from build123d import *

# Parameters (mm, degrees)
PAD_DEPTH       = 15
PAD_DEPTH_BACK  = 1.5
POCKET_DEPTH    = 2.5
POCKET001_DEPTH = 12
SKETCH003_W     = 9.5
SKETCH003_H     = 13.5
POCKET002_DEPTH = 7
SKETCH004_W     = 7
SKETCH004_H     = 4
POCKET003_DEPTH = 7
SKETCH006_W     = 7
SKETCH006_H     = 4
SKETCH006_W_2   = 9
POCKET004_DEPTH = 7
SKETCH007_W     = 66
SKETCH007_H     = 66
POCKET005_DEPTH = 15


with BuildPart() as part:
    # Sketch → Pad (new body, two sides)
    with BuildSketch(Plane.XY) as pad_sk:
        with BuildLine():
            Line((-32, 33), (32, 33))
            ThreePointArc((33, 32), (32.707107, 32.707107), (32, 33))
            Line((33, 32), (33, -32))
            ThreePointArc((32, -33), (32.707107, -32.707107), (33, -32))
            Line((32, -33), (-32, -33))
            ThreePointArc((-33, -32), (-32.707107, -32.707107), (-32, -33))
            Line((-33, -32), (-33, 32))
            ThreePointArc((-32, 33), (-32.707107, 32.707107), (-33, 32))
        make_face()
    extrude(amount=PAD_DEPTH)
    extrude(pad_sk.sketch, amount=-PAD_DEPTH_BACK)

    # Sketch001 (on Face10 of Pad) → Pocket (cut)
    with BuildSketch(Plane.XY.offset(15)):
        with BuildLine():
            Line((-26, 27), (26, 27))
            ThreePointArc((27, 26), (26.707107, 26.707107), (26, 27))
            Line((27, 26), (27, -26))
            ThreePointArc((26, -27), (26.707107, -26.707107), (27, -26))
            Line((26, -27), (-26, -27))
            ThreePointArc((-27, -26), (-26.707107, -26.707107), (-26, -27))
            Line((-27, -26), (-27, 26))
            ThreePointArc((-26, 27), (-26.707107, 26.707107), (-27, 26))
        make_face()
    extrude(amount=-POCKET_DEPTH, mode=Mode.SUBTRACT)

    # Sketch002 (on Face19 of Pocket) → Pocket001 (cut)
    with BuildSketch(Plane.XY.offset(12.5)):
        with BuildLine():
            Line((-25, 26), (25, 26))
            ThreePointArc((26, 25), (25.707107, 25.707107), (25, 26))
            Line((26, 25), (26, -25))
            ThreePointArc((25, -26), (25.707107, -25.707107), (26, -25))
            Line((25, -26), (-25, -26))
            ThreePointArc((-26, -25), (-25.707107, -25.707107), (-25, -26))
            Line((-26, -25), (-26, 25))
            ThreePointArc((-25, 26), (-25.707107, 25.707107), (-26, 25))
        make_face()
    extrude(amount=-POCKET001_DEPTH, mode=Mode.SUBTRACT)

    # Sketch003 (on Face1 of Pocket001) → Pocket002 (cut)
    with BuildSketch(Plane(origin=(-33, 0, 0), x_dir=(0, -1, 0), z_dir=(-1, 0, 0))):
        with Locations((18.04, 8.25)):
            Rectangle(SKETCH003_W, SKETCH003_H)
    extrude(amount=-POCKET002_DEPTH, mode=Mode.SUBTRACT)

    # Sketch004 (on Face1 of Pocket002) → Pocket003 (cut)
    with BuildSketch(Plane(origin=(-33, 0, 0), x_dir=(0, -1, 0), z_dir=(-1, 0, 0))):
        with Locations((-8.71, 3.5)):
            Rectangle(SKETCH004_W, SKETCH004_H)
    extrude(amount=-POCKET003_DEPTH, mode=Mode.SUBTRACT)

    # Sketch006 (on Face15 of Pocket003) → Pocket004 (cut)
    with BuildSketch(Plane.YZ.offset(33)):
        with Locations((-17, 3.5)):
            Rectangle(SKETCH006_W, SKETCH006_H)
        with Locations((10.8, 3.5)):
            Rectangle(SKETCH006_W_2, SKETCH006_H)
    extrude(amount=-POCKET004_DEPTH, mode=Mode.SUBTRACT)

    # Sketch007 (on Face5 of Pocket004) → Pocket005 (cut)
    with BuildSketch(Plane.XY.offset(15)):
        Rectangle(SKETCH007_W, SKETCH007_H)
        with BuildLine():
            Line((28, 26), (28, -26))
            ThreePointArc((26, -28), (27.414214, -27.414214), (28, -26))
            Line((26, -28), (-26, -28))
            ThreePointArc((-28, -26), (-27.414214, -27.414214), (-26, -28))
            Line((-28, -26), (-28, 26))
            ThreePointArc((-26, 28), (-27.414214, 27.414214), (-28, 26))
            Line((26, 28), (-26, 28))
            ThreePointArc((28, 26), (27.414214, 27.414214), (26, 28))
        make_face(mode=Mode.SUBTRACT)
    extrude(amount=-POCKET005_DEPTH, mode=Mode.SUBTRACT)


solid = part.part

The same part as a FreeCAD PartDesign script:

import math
import FreeCAD as App
import Part
import Sketcher
from FreeCAD import Vector

doc = App.newDocument("Part")
body = doc.addObject("PartDesign::Body", "Body")

sketch1 = body.newObject("Sketcher::SketchObject", "Sketch")
sketch1.AttachmentSupport = (doc.getObject("XY_Plane"), [""])
sketch1.MapMode = "FlatFace"
sketch1.addGeometry([
    Part.LineSegment(Vector(32, 33, 0), Vector(-32, 33, 0)),
    Part.ArcOfCircle(Part.Circle(Vector(-32, 32, 0), Vector(0, 0, 1), 1), math.radians(90), math.radians(180)),
    Part.LineSegment(Vector(-33, 32, 0), Vector(-33, -32, 0)),
    Part.ArcOfCircle(Part.Circle(Vector(-32, -32, 0), Vector(0, 0, 1), 1), math.radians(180), math.radians(270)),
    Part.LineSegment(Vector(-32, -33, 0), Vector(32, -33, 0)),
    Part.ArcOfCircle(Part.Circle(Vector(32, -32, 0), Vector(0, 0, 1), 1), math.radians(-90), math.radians(0)),
    Part.LineSegment(Vector(33, -32, 0), Vector(33, 32, 0)),
    Part.ArcOfCircle(Part.Circle(Vector(32, 32, 0), Vector(0, 0, 1), 1), math.radians(0), math.radians(90)),
], False)
sketch1.addConstraint([
    Sketcher.Constraint("Tangent", 0, 2, 1, 1),
    Sketcher.Constraint("Tangent", 1, 2, 2, 1),
    Sketcher.Constraint("Tangent", 2, 2, 3, 1),
    Sketcher.Constraint("Tangent", 3, 2, 4, 1),
    Sketcher.Constraint("Tangent", 4, 2, 5, 1),
    Sketcher.Constraint("Tangent", 5, 2, 6, 1),
    Sketcher.Constraint("Tangent", 6, 2, 7, 1),
    Sketcher.Constraint("Tangent", 7, 2, 0, 1),
    Sketcher.Constraint("Horizontal", 0),
    Sketcher.Constraint("Vertical", 2),
    Sketcher.Constraint("Horizontal", 4),
    Sketcher.Constraint("Vertical", 6),
    Sketcher.Constraint("Equal", 1, 3),
    Sketcher.Constraint("Equal", 3, 5),
    Sketcher.Constraint("Equal", 5, 7),
    Sketcher.Constraint("Symmetric", 1, 3, 5, 3, -1, 1),
    Sketcher.Constraint("Equal", 4, 2),
    Sketcher.Constraint("Radius", 1, 0.999999),
    Sketcher.Constraint("DistanceX", 0, 2, 0, 1, 64.0),
])
pad1 = body.newObject("PartDesign::Pad", "Pad")
pad1.Profile = sketch1
pad1.Type = "TwoLengths"
pad1.Length = 15
pad1.Length2 = 1.5

sketch2 = body.newObject("Sketcher::SketchObject", "Sketch001")
sketch2.AttachmentSupport = (doc.getObject("XY_Plane"), [""])
sketch2.MapMode = "FlatFace"
sketch2.AttachmentOffset = App.Placement(Vector(0, 0, 15), App.Rotation())
sketch2.addGeometry([
    Part.LineSegment(Vector(26, 27, 0), Vector(-26, 27, 0)),
    Part.ArcOfCircle(Part.Circle(Vector(-26, 26, 0), Vector(0, 0, 1), 1), math.radians(90), math.radians(180)),
    Part.LineSegment(Vector(-27, 26, 0), Vector(-27, -26, 0)),
    Part.ArcOfCircle(Part.Circle(Vector(-26, -26, 0), Vector(0, 0, 1), 1), math.radians(180), math.radians(270)),
    Part.LineSegment(Vector(-26, -27, 0), Vector(26, -27, 0)),
    Part.ArcOfCircle(Part.Circle(Vector(26, -26, 0), Vector(0, 0, 1), 1), math.radians(-90), math.radians(0)),
    Part.LineSegment(Vector(27, -26, 0), Vector(27, 26, 0)),
    Part.ArcOfCircle(Part.Circle(Vector(26, 26, 0), Vector(0, 0, 1), 1), math.radians(0), math.radians(90)),
], False)
sketch2.addConstraint([
    Sketcher.Constraint("Tangent", 0, 2, 1, 1),
    Sketcher.Constraint("Tangent", 1, 2, 2, 1),
    Sketcher.Constraint("Tangent", 2, 2, 3, 1),
    Sketcher.Constraint("Tangent", 3, 2, 4, 1),
    Sketcher.Constraint("Tangent", 4, 2, 5, 1),
    Sketcher.Constraint("Tangent", 5, 2, 6, 1),
    Sketcher.Constraint("Tangent", 6, 2, 7, 1),
    Sketcher.Constraint("Tangent", 7, 2, 0, 1),
    Sketcher.Constraint("Horizontal", 0),
    Sketcher.Constraint("Vertical", 2),
    Sketcher.Constraint("Horizontal", 4),
    Sketcher.Constraint("Vertical", 6),
    Sketcher.Constraint("Equal", 1, 3),
    Sketcher.Constraint("Equal", 3, 5),
    Sketcher.Constraint("Equal", 5, 7),
    Sketcher.Constraint("Symmetric", 1, 3, 5, 3, -1, 1),
    Sketcher.Constraint("Equal", 4, 2),
    Sketcher.Constraint("Radius", 1, 0.999999),
    Sketcher.Constraint("DistanceX", 0, 2, 0, 1, 52.0),
])
pocket1 = body.newObject("PartDesign::Pocket", "Pocket")
pocket1.Profile = sketch2
pocket1.Length = 2.5

sketch3 = body.newObject("Sketcher::SketchObject", "Sketch002")
sketch3.AttachmentSupport = (doc.getObject("XY_Plane"), [""])
sketch3.MapMode = "FlatFace"
sketch3.AttachmentOffset = App.Placement(Vector(0, 0, 12.5), App.Rotation())
sketch3.addGeometry([
    Part.LineSegment(Vector(25, 26, 0), Vector(-25, 26, 0)),
    Part.ArcOfCircle(Part.Circle(Vector(-25, 25, 0), Vector(0, 0, 1), 1), math.radians(90), math.radians(180)),
    Part.LineSegment(Vector(-26, 25, 0), Vector(-26, -25, 0)),
    Part.ArcOfCircle(Part.Circle(Vector(-25, -25, 0), Vector(0, 0, 1), 1), math.radians(180), math.radians(270)),
    Part.LineSegment(Vector(-25, -26, 0), Vector(25, -26, 0)),
    Part.ArcOfCircle(Part.Circle(Vector(25, -25, 0), Vector(0, 0, 1), 1), math.radians(-90), math.radians(0)),
    Part.LineSegment(Vector(26, -25, 0), Vector(26, 25, 0)),
    Part.ArcOfCircle(Part.Circle(Vector(25, 25, 0), Vector(0, 0, 1), 1), math.radians(0), math.radians(90)),
], False)
sketch3.addConstraint([
    Sketcher.Constraint("Tangent", 0, 2, 1, 1),
    Sketcher.Constraint("Tangent", 1, 2, 2, 1),
    Sketcher.Constraint("Tangent", 2, 2, 3, 1),
    Sketcher.Constraint("Tangent", 3, 2, 4, 1),
    Sketcher.Constraint("Tangent", 4, 2, 5, 1),
    Sketcher.Constraint("Tangent", 5, 2, 6, 1),
    Sketcher.Constraint("Tangent", 6, 2, 7, 1),
    Sketcher.Constraint("Tangent", 7, 2, 0, 1),
    Sketcher.Constraint("Horizontal", 0),
    Sketcher.Constraint("Vertical", 2),
    Sketcher.Constraint("Horizontal", 4),
    Sketcher.Constraint("Vertical", 6),
    Sketcher.Constraint("Equal", 1, 3),
    Sketcher.Constraint("Equal", 3, 5),
    Sketcher.Constraint("Equal", 5, 7),
    Sketcher.Constraint("Symmetric", 1, 3, 5, 3, -1, 1),
    Sketcher.Constraint("Equal", 4, 2),
    Sketcher.Constraint("Radius", 1, 0.999999),
    Sketcher.Constraint("DistanceX", 0, 2, 0, 1, 50.0),
])
pocket2 = body.newObject("PartDesign::Pocket", "Pocket001")
pocket2.Profile = sketch3
pocket2.Length = 12

sketch4 = body.newObject("Sketcher::SketchObject", "Sketch003")
sketch4.AttachmentSupport = (doc.getObject("YZ_Plane"), [""])
sketch4.MapMode = "FlatFace"
sketch4.AttachmentOffset = App.Placement(Vector(0, 0, -33), App.Rotation())
sketch4.addGeometry([
    Part.LineSegment(Vector(-13, 15, 0), Vector(-13, 2, 0)),
    Part.LineSegment(Vector(-13, 2, 0), Vector(-23, 2, 0)),
    Part.LineSegment(Vector(-23, 2, 0), Vector(-23, 15, 0)),
    Part.LineSegment(Vector(-23, 15, 0), Vector(-13, 15, 0)),
], False)
sketch4.addConstraint([
    Sketcher.Constraint("Coincident", 0, 2, 1, 1),
    Sketcher.Constraint("Coincident", 1, 2, 2, 1),
    Sketcher.Constraint("Coincident", 2, 2, 3, 1),
    Sketcher.Constraint("Coincident", 3, 2, 0, 1),
    Sketcher.Constraint("Vertical", 0),
    Sketcher.Constraint("Horizontal", 1),
    Sketcher.Constraint("Vertical", 2),
    Sketcher.Constraint("Horizontal", 3),
    Sketcher.Constraint("DistanceX", 1, 2, 1, 1, 9.5),
    Sketcher.Constraint("DistanceY", 0, 2, 0, 1, 13.5),
    Sketcher.Constraint("DistanceY", -1, 1, 2, 2, 15.0),
    Sketcher.Constraint("DistanceX", 0, 2, -1, 1, 13.29),
])
pocket3 = body.newObject("PartDesign::Pocket", "Pocket002")
pocket3.Profile = sketch4
pocket3.Length = 7
pocket3.Reversed = True

sketch5 = body.newObject("Sketcher::SketchObject", "Sketch004")
sketch5.AttachmentSupport = (doc.getObject("YZ_Plane"), [""])
sketch5.MapMode = "FlatFace"
sketch5.AttachmentOffset = App.Placement(Vector(0, 0, -33), App.Rotation())
sketch5.addGeometry([
    Part.LineSegment(Vector(12.2, 5.5, 0), Vector(12.2, 1.5, 0)),
    Part.LineSegment(Vector(12.2, 1.5, 0), Vector(5.2, 1.5, 0)),
    Part.LineSegment(Vector(5.2, 1.5, 0), Vector(5.2, 5.5, 0)),
    Part.LineSegment(Vector(5.2, 5.5, 0), Vector(12.2, 5.5, 0)),
], False)
sketch5.addConstraint([
    Sketcher.Constraint("Coincident", 0, 2, 1, 1),
    Sketcher.Constraint("Coincident", 1, 2, 2, 1),
    Sketcher.Constraint("Coincident", 2, 2, 3, 1),
    Sketcher.Constraint("Coincident", 3, 2, 0, 1),
    Sketcher.Constraint("Vertical", 0),
    Sketcher.Constraint("Horizontal", 1),
    Sketcher.Constraint("Vertical", 2),
    Sketcher.Constraint("Horizontal", 3),
    Sketcher.Constraint("DistanceX", 1, 2, 1, 1, 7.0),
    Sketcher.Constraint("DistanceY", 0, 2, 0, 1, 4.0),
    Sketcher.Constraint("DistanceY", -1, 1, 0, 2, 1.5),
    Sketcher.Constraint("DistanceX", -1, 1, 0, 2, 12.21),
])
pocket4 = body.newObject("PartDesign::Pocket", "Pocket003")
pocket4.Profile = sketch5
pocket4.Length = 7
pocket4.Reversed = True

sketch6 = body.newObject("Sketcher::SketchObject", "Sketch005")
sketch6.AttachmentSupport = (doc.getObject("YZ_Plane"), [""])
sketch6.MapMode = "FlatFace"
sketch6.AttachmentOffset = App.Placement(Vector(0, 0, 33), App.Rotation())
sketch6.addGeometry([
    Part.LineSegment(Vector(-20.5, 5.5, 0), Vector(-20.5, 1.5, 0)),
    Part.LineSegment(Vector(-20.5, 1.5, 0), Vector(-13.5, 1.5, 0)),
    Part.LineSegment(Vector(-13.5, 1.5, 0), Vector(-13.5, 5.5, 0)),
    Part.LineSegment(Vector(-13.5, 5.5, 0), Vector(-20.5, 5.5, 0)),
    Part.LineSegment(Vector(6.3, 5.5, 0), Vector(6.3, 1.5, 0)),
    Part.LineSegment(Vector(6.3, 1.5, 0), Vector(15.3, 1.5, 0)),
    Part.LineSegment(Vector(15.3, 1.5, 0), Vector(15.3, 5.5, 0)),
    Part.LineSegment(Vector(15.3, 5.5, 0), Vector(6.3, 5.5, 0)),
], False)
sketch6.addConstraint([
    Sketcher.Constraint("Coincident", 0, 2, 1, 1),
    Sketcher.Constraint("Coincident", 1, 2, 2, 1),
    Sketcher.Constraint("Coincident", 2, 2, 3, 1),
    Sketcher.Constraint("Coincident", 3, 2, 0, 1),
    Sketcher.Constraint("Coincident", 4, 2, 5, 1),
    Sketcher.Constraint("Coincident", 5, 2, 6, 1),
    Sketcher.Constraint("Coincident", 6, 2, 7, 1),
    Sketcher.Constraint("Coincident", 7, 2, 4, 1),
    Sketcher.Constraint("Vertical", 0),
    Sketcher.Constraint("Horizontal", 1),
    Sketcher.Constraint("Vertical", 2),
    Sketcher.Constraint("Horizontal", 3),
    Sketcher.Constraint("Vertical", 4),
    Sketcher.Constraint("Horizontal", 5),
    Sketcher.Constraint("Vertical", 6),
    Sketcher.Constraint("Horizontal", 7),
    Sketcher.Constraint("Horizontal", 1, 2, 4, 2),
    Sketcher.Constraint("Horizontal", 3, 2, 6, 2),
    Sketcher.Constraint("DistanceX", 1, 1, 1, 2, 7.0),
    Sketcher.Constraint("DistanceX", 5, 1, 5, 2, 9.0),
    Sketcher.Constraint("DistanceY", 0, 2, 0, 1, 4.0),
    Sketcher.Constraint("DistanceX", 0, 2, -1, 1, 20.5),
    Sketcher.Constraint("DistanceY", -1, 1, 0, 2, 1.5),
    Sketcher.Constraint("DistanceX", -1, 1, 4, 2, 6.3),
])
pocket5 = body.newObject("PartDesign::Pocket", "Pocket004")
pocket5.Profile = sketch6
pocket5.Length = 7

sketch7 = body.newObject("Sketcher::SketchObject", "Sketch006")
sketch7.AttachmentSupport = (doc.getObject("XY_Plane"), [""])
sketch7.MapMode = "FlatFace"
sketch7.AttachmentOffset = App.Placement(Vector(0, 0, 15), App.Rotation())
sketch7.addGeometry([
    Part.LineSegment(Vector(-33, 33, 0), Vector(-33, -33, 0)),
    Part.LineSegment(Vector(-33, -33, 0), Vector(33, -33, 0)),
    Part.LineSegment(Vector(33, -33, 0), Vector(33, 33, 0)),
    Part.LineSegment(Vector(33, 33, 0), Vector(-33, 33, 0)),
    Part.ArcOfCircle(Part.Circle(Vector(26, 26, 0), Vector(0, 0, 1), 2), math.radians(0), math.radians(90)),
    Part.LineSegment(Vector(28, 26, 0), Vector(28, -26, 0)),
    Part.ArcOfCircle(Part.Circle(Vector(26, -26, 0), Vector(0, 0, 1), 2), math.radians(-90), math.radians(0)),
    Part.LineSegment(Vector(26, -28, 0), Vector(-26, -28, 0)),
    Part.ArcOfCircle(Part.Circle(Vector(-26, -26, 0), Vector(0, 0, 1), 2), math.radians(180), math.radians(270)),
    Part.LineSegment(Vector(-28, -26, 0), Vector(-28, 26, 0)),
    Part.ArcOfCircle(Part.Circle(Vector(-26, 26, 0), Vector(0, 0, 1), 2), math.radians(90), math.radians(180)),
    Part.LineSegment(Vector(-26, 28, 0), Vector(26, 28, 0)),
], False)
sketch7.addConstraint([
    Sketcher.Constraint("Coincident", 0, 2, 1, 1),
    Sketcher.Constraint("Coincident", 1, 2, 2, 1),
    Sketcher.Constraint("Coincident", 2, 2, 3, 1),
    Sketcher.Constraint("Coincident", 3, 2, 0, 1),
    Sketcher.Constraint("Tangent", 4, 1, 5, 1),
    Sketcher.Constraint("Tangent", 5, 2, 6, 2),
    Sketcher.Constraint("Tangent", 6, 1, 7, 1),
    Sketcher.Constraint("Tangent", 7, 2, 8, 2),
    Sketcher.Constraint("Tangent", 8, 1, 9, 1),
    Sketcher.Constraint("Tangent", 9, 2, 10, 2),
    Sketcher.Constraint("Tangent", 10, 1, 11, 1),
    Sketcher.Constraint("Tangent", 11, 2, 4, 2),
    Sketcher.Constraint("Vertical", 0),
    Sketcher.Constraint("Horizontal", 1),
    Sketcher.Constraint("Vertical", 2),
    Sketcher.Constraint("Horizontal", 3),
    Sketcher.Constraint("Vertical", 5),
    Sketcher.Constraint("Horizontal", 7),
    Sketcher.Constraint("Vertical", 9),
    Sketcher.Constraint("Horizontal", 11),
    Sketcher.Constraint("Equal", 4, 6),
    Sketcher.Constraint("Equal", 6, 8),
    Sketcher.Constraint("Equal", 8, 10),
    Sketcher.Constraint("Symmetric", 4, 3, 8, 3, -1, 1),
    Sketcher.Constraint("Symmetric", 0, 2, 2, 2, -1, 1),
    Sketcher.Constraint("Equal", 3, 0),
    Sketcher.Constraint("Equal", 11, 5),
    Sketcher.Constraint("Radius", 4, 1.999999),
    Sketcher.Constraint("DistanceX", 1, 1, 1, 2, 66.0),
    Sketcher.Constraint("DistanceX", 7, 2, 7, 1, 52.0),
])
pocket6 = body.newObject("PartDesign::Pocket", "Pocket005")
pocket6.Profile = sketch7
pocket6.Length = 15

doc.recompute()
